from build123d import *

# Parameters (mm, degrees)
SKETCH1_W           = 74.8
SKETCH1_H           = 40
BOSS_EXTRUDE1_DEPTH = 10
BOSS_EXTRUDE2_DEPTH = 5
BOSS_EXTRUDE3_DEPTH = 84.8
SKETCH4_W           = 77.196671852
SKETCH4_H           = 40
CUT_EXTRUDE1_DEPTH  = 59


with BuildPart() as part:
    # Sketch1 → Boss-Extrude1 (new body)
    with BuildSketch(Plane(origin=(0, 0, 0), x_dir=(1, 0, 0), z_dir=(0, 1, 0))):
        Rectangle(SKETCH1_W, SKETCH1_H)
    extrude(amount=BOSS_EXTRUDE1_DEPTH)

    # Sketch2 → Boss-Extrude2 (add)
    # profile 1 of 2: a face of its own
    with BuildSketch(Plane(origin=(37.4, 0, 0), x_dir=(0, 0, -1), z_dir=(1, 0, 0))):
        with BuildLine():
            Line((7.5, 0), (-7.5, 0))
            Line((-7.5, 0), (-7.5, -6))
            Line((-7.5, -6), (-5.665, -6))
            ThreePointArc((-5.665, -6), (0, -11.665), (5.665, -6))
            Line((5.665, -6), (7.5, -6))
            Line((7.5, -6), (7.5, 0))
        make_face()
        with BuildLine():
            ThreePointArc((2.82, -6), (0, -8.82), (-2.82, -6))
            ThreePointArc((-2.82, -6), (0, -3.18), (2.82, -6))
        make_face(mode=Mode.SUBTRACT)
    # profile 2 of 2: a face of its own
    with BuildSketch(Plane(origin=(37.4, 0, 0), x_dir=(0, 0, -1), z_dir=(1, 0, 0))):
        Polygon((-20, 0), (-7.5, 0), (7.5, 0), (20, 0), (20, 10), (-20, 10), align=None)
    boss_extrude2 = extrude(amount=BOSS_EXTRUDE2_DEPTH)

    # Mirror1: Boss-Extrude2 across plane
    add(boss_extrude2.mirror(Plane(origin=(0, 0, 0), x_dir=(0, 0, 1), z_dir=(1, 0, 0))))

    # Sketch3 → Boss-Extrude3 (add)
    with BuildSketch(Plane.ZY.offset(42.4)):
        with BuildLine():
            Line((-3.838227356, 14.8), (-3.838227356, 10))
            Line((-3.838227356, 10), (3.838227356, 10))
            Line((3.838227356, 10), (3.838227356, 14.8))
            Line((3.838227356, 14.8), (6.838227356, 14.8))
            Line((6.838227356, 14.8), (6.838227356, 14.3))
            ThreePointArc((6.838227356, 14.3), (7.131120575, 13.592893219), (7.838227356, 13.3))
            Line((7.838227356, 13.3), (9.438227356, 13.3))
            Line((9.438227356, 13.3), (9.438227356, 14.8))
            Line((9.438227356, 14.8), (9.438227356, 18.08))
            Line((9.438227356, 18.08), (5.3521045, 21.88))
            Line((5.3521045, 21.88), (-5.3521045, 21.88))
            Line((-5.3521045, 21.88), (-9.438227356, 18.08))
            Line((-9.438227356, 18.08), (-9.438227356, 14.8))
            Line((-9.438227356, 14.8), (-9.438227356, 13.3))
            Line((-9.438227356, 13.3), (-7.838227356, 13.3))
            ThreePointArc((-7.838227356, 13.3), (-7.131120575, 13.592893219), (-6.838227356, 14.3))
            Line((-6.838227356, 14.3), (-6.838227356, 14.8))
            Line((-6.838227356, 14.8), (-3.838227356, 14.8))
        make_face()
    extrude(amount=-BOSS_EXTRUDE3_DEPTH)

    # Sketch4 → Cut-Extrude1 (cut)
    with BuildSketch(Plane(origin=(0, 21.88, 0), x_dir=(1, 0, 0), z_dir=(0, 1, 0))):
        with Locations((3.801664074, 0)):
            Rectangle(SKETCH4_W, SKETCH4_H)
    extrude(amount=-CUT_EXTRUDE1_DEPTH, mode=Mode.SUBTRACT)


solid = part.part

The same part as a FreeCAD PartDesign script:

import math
import FreeCAD as App
import Part
import Sketcher
Q = App.Units.Quantity


def add_polygon(sketch, points):
    """Adds a closed chain of lines whose ends are joined by coincident constraints."""
    first, n = sketch.GeometryCount, len(points)
    for a, b in zip(points, points[1:] + points[:1]):
        sketch.addGeometry(Part.LineSegment(App.Vector(*a, 0), App.Vector(*b, 0)), False)
    for i in range(n):
        sketch.addConstraint(Sketcher.Constraint("Coincident", first + i, 2, first + (i + 1) % n, 1))

doc = App.newDocument("Part")
params = doc.addObject("Spreadsheet::Sheet", "Params")
for row, (alias, value) in enumerate([
    ("sketch1_height", "40 mm"),
    ("sketch1_width", "74.8 mm"),
    ("pad1_length", "10 mm"),
    ("sketch2_diameter", "5.64 mm"),
    ("sketch2_width", "6 mm"),
    ("sketch2_width2", "10 mm"),
    ("sketch2_height", "40 mm"),
    ("sketch2_height2", "12.5 mm"),
    ("pad2_length", "5 mm"),
    ("sketch3_radius", "1 mm"),
    ("sketch3_height", "3 mm"),
    ("sketch3_width", "4.8 mm"),
    ("sketch3_width2", "0.5 mm"),
    ("sketch3_height2", "1.6 mm"),
    ("pad3_length", "84.8 mm"),
    ("sketch4_height", "40 mm"),
    ("pocket1_length", "59 mm"),
], start=1):
    params.set(f"A{row}", alias)
    params.set(f"B{row}", "=" + value)
    params.setAlias(f"B{row}", alias)

body = doc.addObject("PartDesign::Body", "Body")

# Sketch on XZ plane
sketch1 = body.newObject("Sketcher::SketchObject", "Sketch")
sketch1.AttachmentSupport = (doc.getObject("XZ_Plane"), [""])
sketch1.MapMode = "FlatFace"
add_polygon(sketch1, [(-37, -20), (-37, 20), (37, 20), (37, -20)])  # lines 0-3
sketch1.addConstraint([
    Sketcher.Constraint("Vertical", 0),
    Sketcher.Constraint("Horizontal", 1),
    Sketcher.Constraint("Vertical", 2),
    Sketcher.Constraint("Horizontal", 3),
    Sketcher.Constraint("Symmetric", 0, 2, 2, 2, -1, 1),
    Sketcher.Constraint("DistanceY", 0, 1, 0, 2, Q("40 mm")),
    Sketcher.Constraint("DistanceX", 1, 1, 1, 2, Q("74.8 mm")),
])
sketch1.setExpression("Constraints[9]", "Params.sketch1_height")
sketch1.setExpression("Constraints[10]", "Params.sketch1_width")
pad1 = body.newObject("PartDesign::Pad", "Pad")
pad1.Profile = sketch1
pad1.setExpression("Length", "Params.pad1_length")
pad1.Reversed = True

# Sketch on YZ plane
sketch2 = body.newObject("Sketcher::SketchObject", "Sketch001")
sketch2.AttachmentSupport = (doc.getObject("YZ_Plane"), [""])
sketch2.MapMode = "FlatFace"
sketch2.AttachmentOffset = App.Placement(App.Vector(0, 0, 37.4), App.Rotation())
sketch2.addGeometry([
    Part.LineSegment(App.Vector(-6, -7.5, 0), App.Vector(0, -7.5, 0)),  # 0
    Part.LineSegment(App.Vector(0, -7.5, 0), App.Vector(0, -20, 0)),  # 1
    Part.LineSegment(App.Vector(0, -20, 0), App.Vector(10, -20, 0)),  # 2
    Part.LineSegment(App.Vector(10, -20, 0), App.Vector(10, 20, 0)),  # 3
    Part.LineSegment(App.Vector(10, 20, 0), App.Vector(0, 20, 0)),  # 4
    Part.LineSegment(App.Vector(0, 20, 0), App.Vector(0, 7.5, 0)),  # 5
    Part.LineSegment(App.Vector(0, 7.5, 0), App.Vector(-6, 7.5, 0)),  # 6
    Part.LineSegment(App.Vector(-6, 7.5, 0), App.Vector(-6, 5.7, 0)),  # 7
    Part.ArcOfCircle(Part.Circle(App.Vector(-6, 0, 0), App.Vector(0, 0, 1), 5.7), math.radians(90), math.radians(270)),  # 8
    Part.LineSegment(App.Vector(-6, -5.7, 0), App.Vector(-6, -7.5, 0)),  # 9
    Part.Circle(App.Vector(-6, 0, 0), App.Vector(0, 0, 1), 2.8),  # 10
], False)
sketch2.addConstraint([
    Sketcher.Constraint("Coincident", 0, 2, 1, 1),
    Sketcher.Constraint("Coincident", 1, 2, 2, 1),
    Sketcher.Constraint("Coincident", 2, 2, 3, 1),
    Sketcher.Constraint("Coincident", 3, 2, 4, 1),
    Sketcher.Constraint("Coincident", 4, 2, 5, 1),
    Sketcher.Constraint("Coincident", 5, 2, 6, 1),
    Sketcher.Constraint("Coincident", 6, 2, 7, 1),
    Sketcher.Constraint("Coincident", 7, 2, 8, 1),
    Sketcher.Constraint("Coincident", 8, 2, 9, 1),
    Sketcher.Constraint("Coincident", 9, 2, 0, 1),
    Sketcher.Constraint("Horizontal", 0),
    Sketcher.Constraint("Vertical", 1),
    Sketcher.Constraint("Horizontal", 2),
    Sketcher.Constraint("Vertical", 3),
    Sketcher.Constraint("Horizontal", 4),
    Sketcher.Constraint("Vertical", 5),
    Sketcher.Constraint("Horizontal", 6),
    Sketcher.Constraint("Vertical", 7),
    Sketcher.Constraint("Vertical", 9),
    Sketcher.Constraint("Coincident", 10, 3, 8, 3),
    Sketcher.Constraint("Symmetric", 1, 2, 4, 2, -1, 1),
    Sketcher.Constraint("Symmetric", 0, 2, 5, 2, -1),
    Sketcher.Constraint("Symmetric", 7, 2, 8, 2, -1),
    Sketcher.Constraint("Vertical", 10, 3, 6, 2),
    Sketcher.Constraint("Diameter", 10, Q("5.64 mm")),
    Sketcher.Constraint("DistanceX", 0, 1, 0, 2, Q("6 mm")),
    Sketcher.Constraint("DistanceX", 2, 1, 2, 2, Q("10 mm")),
    Sketcher.Constraint("DistanceY", 3, 1, 3, 2, Q("40 mm")),
    Sketcher.Constraint("DistanceY", 1, 2, 1, 1, Q("12.5 mm")),
    Sketcher.Constraint("Radius", 8, Q("5.665 mm")),
])
sketch2.setExpression("Constraints[24]", "Params.sketch2_diameter")
sketch2.setExpression("Constraints[25]", "Params.sketch2_width")
sketch2.setExpression("Constraints[26]", "Params.sketch2_width2")
sketch2.setExpression("Constraints[27]", "Params.sketch2_height")
sketch2.setExpression("Constraints[28]", "Params.sketch2_height2")
pad2 = body.newObject("PartDesign::Pad", "Pad001")
pad2.Profile = sketch2
pad2.setExpression("Length", "Params.pad2_length")
doc.recompute()

mirrored = body.newObject("PartDesign::Mirrored", "Mirrored")
mirrored.Originals = [pad2]
mirrored.MirrorPlane = (doc.getObject("YZ_Plane"), [""])
body.Tip = mirrored

# Sketch on YZ plane
sketch3 = body.newObject("Sketcher::SketchObject", "Sketch002")
sketch3.AttachmentSupport = (doc.getObject("YZ_Plane"), [""])
sketch3.MapMode = "FlatFace"
sketch3.AttachmentOffset = App.Placement(App.Vector(0, 0, -42.4), App.Rotation())
sketch3.addGeometry([
    Part.LineSegment(App.Vector(14.8, -3.8, 0), App.Vector(10, -3.8, 0)),  # 0
    Part.LineSegment(App.Vector(10, -3.8, 0), App.Vector(10, 3.8, 0)),  # 1
    Part.LineSegment(App.Vector(10, 3.8, 0), App.Vector(14.8, 3.8, 0)),  # 2
    Part.LineSegment(App.Vector(14.8, 3.8, 0), App.Vector(14.8, 6.8, 0)),  # 3
    Part.LineSegment(App.Vector(14.8, 6.8, 0), App.Vector(14.3, 6.8, 0)),  # 4
    Part.ArcOfCircle(Part.Circle(App.Vector(14.3, 7.8, 0), App.Vector(0, 0, 1), 1), math.radians(-180), math.radians(-90)),  # 5
    Part.LineSegment(App.Vector(13.3, 7.8, 0), App.Vector(13.3, 9.4, 0)),  # 6
    Part.LineSegment(App.Vector(13.3, 9.4, 0), App.Vector(18.1, 9.4, 0)),  # 7
    Part.LineSegment(App.Vector(18.1, 9.4, 0), App.Vector(21.9, 5.4, 0)),  # 8
    Part.LineSegment(App.Vector(21.9, 5.4, 0), App.Vector(21.9, -5.4, 0)),  # 9
    Part.LineSegment(App.Vector(21.9, -5.4, 0), App.Vector(18.1, -9.4, 0)),  # 10
    Part.LineSegment(App.Vector(18.1, -9.4, 0), App.Vector(13.3, -9.4, 0)),  # 11
    Part.LineSegment(App.Vector(13.3, -9.4, 0), App.Vector(13.3, -7.8, 0)),  # 12
    Part.ArcOfCircle(Part.Circle(App.Vector(14.3, -7.8, 0), App.Vector(0, 0, 1), 1), math.radians(90), math.radians(180)),  # 13
    Part.LineSegment(App.Vector(14.3, -6.8, 0), App.Vector(14.8, -6.8, 0)),  # 14
    Part.LineSegment(App.Vector(14.8, -6.8, 0), App.Vector(14.8, -3.8, 0)),  # 15
], False)
sketch3.addConstraint([
    Sketcher.Constraint("Coincident", 0, 2, 1, 1),
    Sketcher.Constraint("Coincident", 1, 2, 2, 1),
    Sketcher.Constraint("Coincident", 2, 2, 3, 1),
    Sketcher.Constraint("Coincident", 3, 2, 4, 1),
    Sketcher.Constraint("Tangent", 4, 2, 5, 2),
    Sketcher.Constraint("Tangent", 5, 1, 6, 1),
    Sketcher.Constraint("Coincident", 6, 2, 7, 1),
    Sketcher.Constraint("Coincident", 7, 2, 8, 1),
    Sketcher.Constraint("Coincident", 8, 2, 9, 1),
    Sketcher.Constraint("Coincident", 9, 2, 10, 1),
    Sketcher.Constraint("Coincident", 10, 2, 11, 1),
    Sketcher.Constraint("Coincident", 11, 2, 12, 1),
    Sketcher.Constraint("Tangent", 12, 2, 13, 2),
    Sketcher.Constraint("Tangent", 13, 1, 14, 1),
    Sketcher.Constraint("Coincident", 14, 2, 15, 1),
    Sketcher.Constraint("Coincident", 15, 2, 0, 1),
    Sketcher.Constraint("Horizontal", 0),
    Sketcher.Constraint("Vertical", 1),
    Sketcher.Constraint("Horizontal", 2),
    Sketcher.Constraint("Vertical", 3),
    Sketcher.Constraint("Horizontal", 4),
    Sketcher.Constraint("Vertical", 6),
    Sketcher.Constraint("Horizontal", 7),
    Sketcher.Constraint("Vertical", 9),
    Sketcher.Constraint("Horizontal", 11),
    Sketcher.Constraint("Vertical", 12),
    Sketcher.Constraint("Horizontal", 14),
    Sketcher.Constraint("Vertical", 15),
    Sketcher.Constraint("Equal", 5, 13),
    Sketcher.Constraint("Symmetric", 5, 3, 13, 3, -1),
    Sketcher.Constraint("Symmetric", 7, 2, 10, 2, -1),
    Sketcher.Constraint("Symmetric", 2, 2, 15, 2, -1),
    Sketcher.Constraint("Equal", 8, 10),
    Sketcher.Constraint("Radius", 5, Q("1 mm")),
    Sketcher.Constraint("DistanceY", 3, 1, 3, 2, Q("3 mm")),
    Sketcher.Constraint("DistanceX", 0, 2, 0, 1, Q("4.8 mm")),
    Sketcher.Constraint("DistanceX", 4, 2, 4, 1, Q("0.5 mm")),
    Sketcher.Constraint("DistanceY", 6, 1, 6, 2, Q("1.6 mm")),
    Sketcher.Constraint("DistanceX", -1, 1, 0, 2, Q("10 mm")),
    Sketcher.Constraint("DistanceX", 7, 1, 7, 2, Q("4.78 mm")),
    Sketcher.Constraint("DistanceX", 7, 2, 8, 2, Q("3.8 mm")),
    Sketcher.Constraint("Distance", 8, Q("5.58 mm")),
    Sketcher.Constraint("DistanceY", 9, 2, 9, 1, Q("10.704209 mm")),
])
sketch3.setExpression("Constraints[33]", "Params.sketch3_radius")
sketch3.setExpression("Constraints[34]", "Params.sketch3_height")
sketch3.setExpression("Constraints[35]", "Params.sketch3_width")
sketch3.setExpression("Constraints[36]", "Params.sketch3_width2")
sketch3.setExpression("Constraints[37]", "Params.sketch3_height2")
pad3 = body.newObject("PartDesign::Pad", "Pad002")
pad3.Profile = sketch3
pad3.setExpression("Length", "Params.pad3_length")

# Sketch on XZ plane
sketch4 = body.newObject("Sketcher::SketchObject", "Sketch003")
sketch4.AttachmentSupport = (doc.getObject("XZ_Plane"), [""])
sketch4.MapMode = "FlatFace"
sketch4.AttachmentOffset = App.Placement(App.Vector(0, 0, -21.88), App.Rotation())
add_polygon(sketch4, [(-35, -20), (-35, 20), (42, 20), (42, -20)])  # lines 0-3
sketch4.addConstraint([
    Sketcher.Constraint("Vertical", 0),
    Sketcher.Constraint("Horizontal", 1),
    Sketcher.Constraint("Vertical", 2),
    Sketcher.Constraint("Horizontal", 3),
    Sketcher.Constraint("DistanceY", 0, 1, 0, 2, Q("40 mm")),
    Sketcher.Constraint("DistanceY", -1, 1, 0, 2, Q("20 mm")),
    Sketcher.Constraint("DistanceX", -1, 1, 1, 2, Q("42.4 mm")),
    Sketcher.Constraint("DistanceX", 1, 1, 1, 2, Q("77.196672 mm")),
])
sketch4.setExpression("Constraints[8]", "Params.sketch4_height")
pocket1 = body.newObject("PartDesign::Pocket", "Pocket")
pocket1.Profile = sketch4
pocket1.setExpression("Length", "Params.pocket1_length")
pocket1.Reversed = True

doc.recompute()
